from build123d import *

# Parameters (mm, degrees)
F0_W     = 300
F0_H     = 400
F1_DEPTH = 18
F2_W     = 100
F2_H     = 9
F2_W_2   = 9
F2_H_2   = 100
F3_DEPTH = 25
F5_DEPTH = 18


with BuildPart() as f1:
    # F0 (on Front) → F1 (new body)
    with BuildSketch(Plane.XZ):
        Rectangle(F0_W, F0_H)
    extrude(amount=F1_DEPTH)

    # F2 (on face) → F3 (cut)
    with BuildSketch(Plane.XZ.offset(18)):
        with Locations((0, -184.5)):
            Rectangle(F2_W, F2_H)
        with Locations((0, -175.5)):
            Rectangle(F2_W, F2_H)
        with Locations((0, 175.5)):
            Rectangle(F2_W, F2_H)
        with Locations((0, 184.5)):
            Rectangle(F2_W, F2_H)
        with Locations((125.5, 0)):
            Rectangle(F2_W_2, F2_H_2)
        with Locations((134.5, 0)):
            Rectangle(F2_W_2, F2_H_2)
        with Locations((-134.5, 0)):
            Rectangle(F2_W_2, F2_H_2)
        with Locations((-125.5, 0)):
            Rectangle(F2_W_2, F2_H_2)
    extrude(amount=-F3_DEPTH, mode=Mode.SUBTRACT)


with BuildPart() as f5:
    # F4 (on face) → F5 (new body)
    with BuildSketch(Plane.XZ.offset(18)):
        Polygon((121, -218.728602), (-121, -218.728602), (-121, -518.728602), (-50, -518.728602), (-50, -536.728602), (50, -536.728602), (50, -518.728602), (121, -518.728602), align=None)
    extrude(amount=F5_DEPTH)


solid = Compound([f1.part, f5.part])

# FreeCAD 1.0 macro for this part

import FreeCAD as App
import Part
import Sketcher

V = App.Vector


def add_polygon(sketch, points):
    """Adds a closed chain of lines whose ends are joined by coincident constraints."""
    first, n = sketch.GeometryCount, len(points)
    for a, b in zip(points, points[1:] + points[:1]):
        sketch.addGeometry(Part.LineSegment(App.Vector(*a, 0), App.Vector(*b, 0)), False)
    for i in range(n):
        sketch.addConstraint(Sketcher.Constraint("Coincident", first + i, 2, first + (i + 1) % n, 1))

doc = App.newDocument("Part")
body = doc.addObject("PartDesign::Body", "Body")

sketch1 = doc.addObject("Sketcher::SketchObject", "Sketch")
body.addObject(sketch1)
sketch1.AttachmentSupport = (doc.XZ_Plane, [""])
sketch1.MapMode = "FlatFace"
add_polygon(sketch1, [(-150, 200), (-150, -200), (150, -200), (150, 200)])
sketch1.addConstraint([
    Sketcher.Constraint("Vertical", 0),
    Sketcher.Constraint("Horizontal", 1),
    Sketcher.Constraint("Vertical", 2),
    Sketcher.Constraint("Horizontal", 3),
    Sketcher.Constraint("Symmetric", 0, 2, 2, 2, -1, 1),
    Sketcher.Constraint("DistanceX", 1, 1, 1, 2, 300.0),
    Sketcher.Constraint("DistanceY", 0, 2, 0, 1, 400.0),
])
pad1 = doc.addObject("PartDesign::Pad", "Pad")
body.addObject(pad1)
pad1.Profile = sketch1
pad1.Length = 18

sketch2 = doc.addObject("Sketcher::SketchObject", "Sketch001")
body.addObject(sketch2)
sketch2.AttachmentSupport = (doc.XZ_Plane, [""])
sketch2.MapMode = "FlatFace"
sketch2.AttachmentOffset = App.Placement(V(0, 0, 18), App.Rotation())
add_polygon(sketch2, [(-50, -189), (50, -189), (50, -171), (-50, -171)])
add_polygon(sketch2, [(-50, 171), (50, 171), (50, 189), (-50, 189)])
add_polygon(sketch2, [(121, 50), (121, -50), (139, -50), (139, 50)])
add_polygon(sketch2, [(-139, 50), (-139, -50), (-121, -50), (-121, 50)])
sketch2.addConstraint([
    Sketcher.Constraint("Horizontal", 0),
    Sketcher.Constraint("Vertical", 1),
    Sketcher.Constraint("Horizontal", 2),
    Sketcher.Constraint("Vertical", 3),
    Sketcher.Constraint("Horizontal", 4),
    Sketcher.Constraint("Vertical", 5),
    Sketcher.Constraint("Horizontal", 6),
    Sketcher.Constraint("Vertical", 7),
    Sketcher.Constraint("Vertical", 8),
    Sketcher.Constraint("Horizontal", 9),
    Sketcher.Constraint("Vertical", 10),
    Sketcher.Constraint("Horizontal", 11),
    Sketcher.Constraint("Vertical", 12),
    Sketcher.Constraint("Horizontal", 13),
    Sketcher.Constraint("Vertical", 14),
    Sketcher.Constraint("Horizontal", 15),
    Sketcher.Constraint("Symmetric", 2, 2, 4, 2, -1, 1),
    Sketcher.Constraint("Symmetric", 0, 2, 6, 2, -1, 1),
    Sketcher.Constraint("Symmetric", 10, 2, 12, 2, -1, 1),
    Sketcher.Constraint("Symmetric", 8, 2, 14, 2, -1, 1),
    Sketcher.Constraint("Horizontal", 9, 2, 12, 2),
    Sketcher.Constraint("Vertical", 1, 2, 4, 2),
    Sketcher.Constraint("Equal", 15, 1),
    Sketcher.Constraint("Equal", 6, 8),
    Sketcher.Constraint("DistanceX", 0, 1, 0, 2, 100.0),
    Sketcher.Constraint("DistanceX", 9, 1, 9, 2, 18.0),
    Sketcher.Constraint("DistanceY", 0, 2, -1, 1, 189.0),
    Sketcher.Constraint("DistanceX", -1, 1, 8, 2, 121.0),
])
pocket1 = doc.addObject("PartDesign::Pocket", "Pocket")
body.addObject(pocket1)
pocket1.Profile = sketch2
pocket1.Length = 25
body2 = doc.addObject("PartDesign::Body", "Body001")

sketch3 = doc.addObject("Sketcher::SketchObject", "Sketch002")
body2.addObject(sketch3)
sketch3.AttachmentSupport = (doc.getObject("XZ_Plane001"), [""])
sketch3.MapMode = "FlatFace"
sketch3.AttachmentOffset = App.Placement(V(0, 0, 18), App.Rotation())
add_polygon(sketch3, [(121, -218.728602), (-121, -218.728602), (-121, -518.728602), (-50, -518.728602), (-50, -536.728602), (50, -536.728602), (50, -518.728602), (121, -518.728602)])
sketch3.addConstraint([
    Sketcher.Constraint("Horizontal", 0),
    Sketcher.Constraint("Vertical", 1),
    Sketcher.Constraint("Horizontal", 2),
    Sketcher.Constraint("Vertical", 3),
    Sketcher.Constraint("Horizontal", 4),
    Sketcher.Constraint("Vertical", 5),
    Sketcher.Constraint("Horizontal", 6),
    Sketcher.Constraint("Vertical", 7),
    Sketcher.Constraint("Symmetric", 2, 2, 5, 2, -2),
    Sketcher.Constraint("Equal", 2, 6),
    Sketcher.Constraint("DistanceX", 0, 2, 0, 1, 242.0),
    Sketcher.Constraint("DistanceX", 2, 1, 2, 2, 71.0),
    Sketcher.Constraint("DistanceY", 1, 2, 1, 1, 300.0),
    Sketcher.Constraint("DistanceY", 3, 2, 3, 1, 18.0),
    Sketcher.Constraint("DistanceY", 0, 2, -1, 1, 218.728602),
])
pad2 = doc.addObject("PartDesign::Pad", "Pad001")
body2.addObject(pad2)
pad2.Profile = sketch3
pad2.Length = 18

doc.recompute()
